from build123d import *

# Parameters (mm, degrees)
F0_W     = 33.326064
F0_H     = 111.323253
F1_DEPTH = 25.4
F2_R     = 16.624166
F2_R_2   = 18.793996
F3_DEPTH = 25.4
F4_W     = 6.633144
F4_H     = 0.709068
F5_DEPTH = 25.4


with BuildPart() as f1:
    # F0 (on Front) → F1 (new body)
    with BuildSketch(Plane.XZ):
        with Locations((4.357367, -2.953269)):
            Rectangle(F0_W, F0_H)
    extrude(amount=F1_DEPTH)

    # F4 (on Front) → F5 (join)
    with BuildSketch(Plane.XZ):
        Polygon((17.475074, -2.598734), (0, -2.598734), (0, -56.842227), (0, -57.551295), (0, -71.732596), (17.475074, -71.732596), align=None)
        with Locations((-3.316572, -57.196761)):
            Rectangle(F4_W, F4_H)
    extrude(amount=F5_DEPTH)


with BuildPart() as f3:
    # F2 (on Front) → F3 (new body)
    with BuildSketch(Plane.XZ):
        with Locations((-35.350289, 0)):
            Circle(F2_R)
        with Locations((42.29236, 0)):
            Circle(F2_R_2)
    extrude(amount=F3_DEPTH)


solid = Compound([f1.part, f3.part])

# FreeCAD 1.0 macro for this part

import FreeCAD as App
import Part
import Sketcher
from FreeCAD import Vector
Q = App.Units.Quantity

doc = App.newDocument("Part")
body = doc.addObject("PartDesign::Body", "Body")

# Sketch on XZ plane
sketch1 = doc.addObject("Sketcher::SketchObject", "Sketch")
body.addObject(sketch1)
sketch1.AttachmentSupport = (doc.XZ_Plane, [""])
sketch1.MapMode = "FlatFace"
sketch1.addGeometry([
    Part.LineSegment(Vector(-12, 53, 0), Vector(-12, -59, 0)),
    Part.LineSegment(Vector(-12, -59, 0), Vector(21, -59, 0)),
    Part.LineSegment(Vector(21, -59, 0), Vector(21, 53, 0)),
    Part.LineSegment(Vector(21, 53, 0), Vector(-12, 53, 0)),
], False)
sketch1.addConstraint([
    Sketcher.Constraint("Coincident", 0, 2, 1, 1),
    Sketcher.Constraint("Coincident", 1, 2, 2, 1),
    Sketcher.Constraint("Coincident", 2, 2, 3, 1),
    Sketcher.Constraint("Coincident", 3, 2, 0, 1),
    Sketcher.Constraint("Vertical", 0),
    Sketcher.Constraint("Horizontal", 1),
    Sketcher.Constraint("Vertical", 2),
    Sketcher.Constraint("Horizontal", 3),
    Sketcher.Constraint("DistanceX", -1, 1, 1, 2, Q("21.020399 mm")),
    Sketcher.Constraint("DistanceX", 1, 1, 1, 2, Q("33.326064 mm")),
    Sketcher.Constraint("DistanceY", 0, 2, 0, 1, Q("111.323253 mm")),
    Sketcher.Constraint("DistanceY", 0, 2, -1, 1, Q("58.614896 mm")),
])
pad1 = doc.addObject("PartDesign::Pad", "Pad")
body.addObject(pad1)
pad1.Profile = sketch1
pad1.Length = Q("1 in")

# Sketch on XZ plane
sketch2 = doc.addObject("Sketcher::SketchObject", "Sketch001")
body.addObject(sketch2)
sketch2.AttachmentSupport = (doc.XZ_Plane, [""])
sketch2.MapMode = "FlatFace"
sketch2.addGeometry([
    Part.LineSegment(Vector(17.5, -2.6, 0), Vector(0, -2.6, 0)),  # 0
    Part.LineSegment(Vector(0, -2.6, 0), Vector(0, -56.8, 0)),  # 1
    Part.LineSegment(Vector(0, -56.8, 0), Vector(-6.6, -56.8, 0)),  # 2
    Part.LineSegment(Vector(-6.6, -56.8, 0), Vector(-6.6, -57.6, 0)),  # 3
    Part.LineSegment(Vector(-6.6, -57.6, 0), Vector(0, -57.6, 0)),  # 4
    Part.LineSegment(Vector(0, -57.6, 0), Vector(0, -71.7, 0)),  # 5
    Part.LineSegment(Vector(0, -71.7, 0), Vector(17.5, -71.7, 0)),  # 6
    Part.LineSegment(Vector(17.5, -71.7, 0), Vector(17.5, -2.6, 0)),  # 7
], False)
sketch2.addConstraint([
    Sketcher.Constraint("Coincident", 0, 2, 1, 1),
    Sketcher.Constraint("Coincident", 1, 2, 2, 1),
    Sketcher.Constraint("Coincident", 2, 2, 3, 1),
    Sketcher.Constraint("Coincident", 3, 2, 4, 1),
    Sketcher.Constraint("Coincident", 4, 2, 5, 1),
    Sketcher.Constraint("Coincident", 5, 2, 6, 1),
    Sketcher.Constraint("Coincident", 6, 2, 7, 1),
    Sketcher.Constraint("Coincident", 7, 2, 0, 1),
    Sketcher.Constraint("Horizontal", 0),
    Sketcher.Constraint("Vertical", 1),
    Sketcher.Constraint("Horizontal", 2),
    Sketcher.Constraint("Vertical", 3),
    Sketcher.Constraint("Horizontal", 4),
    Sketcher.Constraint("Vertical", 5),
    Sketcher.Constraint("Horizontal", 6),
    Sketcher.Constraint("Vertical", 7),
    Sketcher.Constraint("PointOnObject", 0, 2, -2),
    Sketcher.Constraint("PointOnObject", 4, 2, -2),
    Sketcher.Constraint("DistanceY", 5, 2, 5, 1, Q("14.181301 mm")),
    Sketcher.Constraint("DistanceY", 3, 2, 3, 1, Q("0.709068 mm")),
    Sketcher.Constraint("DistanceX", 0, 2, 0, 1, Q("17.475074 mm")),
    Sketcher.Constraint("DistanceX", 2, 2, 2, 1, Q("6.633144 mm")),
    Sketcher.Constraint("DistanceY", 1, 2, 1, 1, Q("54.243493 mm")),
    Sketcher.Constraint("DistanceY", 0, 2, -1, 1, Q("2.598734 mm")),
])
pad2 = doc.addObject("PartDesign::Pad", "Pad001")
body.addObject(pad2)
pad2.Profile = sketch2
pad2.Length = Q("1 in")
body2 = doc.addObject("PartDesign::Body", "Body001")
body2.AllowCompound = True

# Sketch on XZ plane
sketch3 = doc.addObject("Sketcher::SketchObject", "Sketch002")
body2.addObject(sketch3)
sketch3.AttachmentSupport = (doc.getObject("XZ_Plane001"), [""])
sketch3.MapMode = "FlatFace"
sketch3.addGeometry([
    Part.Circle(Vector(-35, 0, 0), Vector(0, 0, 1), 17),
    Part.Circle(Vector(42, 0, 0), Vector(0, 0, 1), 19),
], False)
sketch3.addConstraint([
    Sketcher.Constraint("PointOnObject", 0, 3, -1),
    Sketcher.Constraint("PointOnObject", 1, 3, -1),
    Sketcher.Constraint("Diameter", 0, Q("33.248332 mm")),
    Sketcher.Constraint("Diameter", 1, Q("37.587992 mm")),
    Sketcher.Constraint("DistanceX", 0, 3, -1, 1, Q("35.350289 mm")),
    Sketcher.Constraint("DistanceX", -1, 1, 1, 3, Q("42.29236 mm")),
])
pad3 = doc.addObject("PartDesign::Pad", "Pad002")
body2.addObject(pad3)
pad3.Profile = sketch3
pad3.Length = Q("1 in")

doc.recompute()
